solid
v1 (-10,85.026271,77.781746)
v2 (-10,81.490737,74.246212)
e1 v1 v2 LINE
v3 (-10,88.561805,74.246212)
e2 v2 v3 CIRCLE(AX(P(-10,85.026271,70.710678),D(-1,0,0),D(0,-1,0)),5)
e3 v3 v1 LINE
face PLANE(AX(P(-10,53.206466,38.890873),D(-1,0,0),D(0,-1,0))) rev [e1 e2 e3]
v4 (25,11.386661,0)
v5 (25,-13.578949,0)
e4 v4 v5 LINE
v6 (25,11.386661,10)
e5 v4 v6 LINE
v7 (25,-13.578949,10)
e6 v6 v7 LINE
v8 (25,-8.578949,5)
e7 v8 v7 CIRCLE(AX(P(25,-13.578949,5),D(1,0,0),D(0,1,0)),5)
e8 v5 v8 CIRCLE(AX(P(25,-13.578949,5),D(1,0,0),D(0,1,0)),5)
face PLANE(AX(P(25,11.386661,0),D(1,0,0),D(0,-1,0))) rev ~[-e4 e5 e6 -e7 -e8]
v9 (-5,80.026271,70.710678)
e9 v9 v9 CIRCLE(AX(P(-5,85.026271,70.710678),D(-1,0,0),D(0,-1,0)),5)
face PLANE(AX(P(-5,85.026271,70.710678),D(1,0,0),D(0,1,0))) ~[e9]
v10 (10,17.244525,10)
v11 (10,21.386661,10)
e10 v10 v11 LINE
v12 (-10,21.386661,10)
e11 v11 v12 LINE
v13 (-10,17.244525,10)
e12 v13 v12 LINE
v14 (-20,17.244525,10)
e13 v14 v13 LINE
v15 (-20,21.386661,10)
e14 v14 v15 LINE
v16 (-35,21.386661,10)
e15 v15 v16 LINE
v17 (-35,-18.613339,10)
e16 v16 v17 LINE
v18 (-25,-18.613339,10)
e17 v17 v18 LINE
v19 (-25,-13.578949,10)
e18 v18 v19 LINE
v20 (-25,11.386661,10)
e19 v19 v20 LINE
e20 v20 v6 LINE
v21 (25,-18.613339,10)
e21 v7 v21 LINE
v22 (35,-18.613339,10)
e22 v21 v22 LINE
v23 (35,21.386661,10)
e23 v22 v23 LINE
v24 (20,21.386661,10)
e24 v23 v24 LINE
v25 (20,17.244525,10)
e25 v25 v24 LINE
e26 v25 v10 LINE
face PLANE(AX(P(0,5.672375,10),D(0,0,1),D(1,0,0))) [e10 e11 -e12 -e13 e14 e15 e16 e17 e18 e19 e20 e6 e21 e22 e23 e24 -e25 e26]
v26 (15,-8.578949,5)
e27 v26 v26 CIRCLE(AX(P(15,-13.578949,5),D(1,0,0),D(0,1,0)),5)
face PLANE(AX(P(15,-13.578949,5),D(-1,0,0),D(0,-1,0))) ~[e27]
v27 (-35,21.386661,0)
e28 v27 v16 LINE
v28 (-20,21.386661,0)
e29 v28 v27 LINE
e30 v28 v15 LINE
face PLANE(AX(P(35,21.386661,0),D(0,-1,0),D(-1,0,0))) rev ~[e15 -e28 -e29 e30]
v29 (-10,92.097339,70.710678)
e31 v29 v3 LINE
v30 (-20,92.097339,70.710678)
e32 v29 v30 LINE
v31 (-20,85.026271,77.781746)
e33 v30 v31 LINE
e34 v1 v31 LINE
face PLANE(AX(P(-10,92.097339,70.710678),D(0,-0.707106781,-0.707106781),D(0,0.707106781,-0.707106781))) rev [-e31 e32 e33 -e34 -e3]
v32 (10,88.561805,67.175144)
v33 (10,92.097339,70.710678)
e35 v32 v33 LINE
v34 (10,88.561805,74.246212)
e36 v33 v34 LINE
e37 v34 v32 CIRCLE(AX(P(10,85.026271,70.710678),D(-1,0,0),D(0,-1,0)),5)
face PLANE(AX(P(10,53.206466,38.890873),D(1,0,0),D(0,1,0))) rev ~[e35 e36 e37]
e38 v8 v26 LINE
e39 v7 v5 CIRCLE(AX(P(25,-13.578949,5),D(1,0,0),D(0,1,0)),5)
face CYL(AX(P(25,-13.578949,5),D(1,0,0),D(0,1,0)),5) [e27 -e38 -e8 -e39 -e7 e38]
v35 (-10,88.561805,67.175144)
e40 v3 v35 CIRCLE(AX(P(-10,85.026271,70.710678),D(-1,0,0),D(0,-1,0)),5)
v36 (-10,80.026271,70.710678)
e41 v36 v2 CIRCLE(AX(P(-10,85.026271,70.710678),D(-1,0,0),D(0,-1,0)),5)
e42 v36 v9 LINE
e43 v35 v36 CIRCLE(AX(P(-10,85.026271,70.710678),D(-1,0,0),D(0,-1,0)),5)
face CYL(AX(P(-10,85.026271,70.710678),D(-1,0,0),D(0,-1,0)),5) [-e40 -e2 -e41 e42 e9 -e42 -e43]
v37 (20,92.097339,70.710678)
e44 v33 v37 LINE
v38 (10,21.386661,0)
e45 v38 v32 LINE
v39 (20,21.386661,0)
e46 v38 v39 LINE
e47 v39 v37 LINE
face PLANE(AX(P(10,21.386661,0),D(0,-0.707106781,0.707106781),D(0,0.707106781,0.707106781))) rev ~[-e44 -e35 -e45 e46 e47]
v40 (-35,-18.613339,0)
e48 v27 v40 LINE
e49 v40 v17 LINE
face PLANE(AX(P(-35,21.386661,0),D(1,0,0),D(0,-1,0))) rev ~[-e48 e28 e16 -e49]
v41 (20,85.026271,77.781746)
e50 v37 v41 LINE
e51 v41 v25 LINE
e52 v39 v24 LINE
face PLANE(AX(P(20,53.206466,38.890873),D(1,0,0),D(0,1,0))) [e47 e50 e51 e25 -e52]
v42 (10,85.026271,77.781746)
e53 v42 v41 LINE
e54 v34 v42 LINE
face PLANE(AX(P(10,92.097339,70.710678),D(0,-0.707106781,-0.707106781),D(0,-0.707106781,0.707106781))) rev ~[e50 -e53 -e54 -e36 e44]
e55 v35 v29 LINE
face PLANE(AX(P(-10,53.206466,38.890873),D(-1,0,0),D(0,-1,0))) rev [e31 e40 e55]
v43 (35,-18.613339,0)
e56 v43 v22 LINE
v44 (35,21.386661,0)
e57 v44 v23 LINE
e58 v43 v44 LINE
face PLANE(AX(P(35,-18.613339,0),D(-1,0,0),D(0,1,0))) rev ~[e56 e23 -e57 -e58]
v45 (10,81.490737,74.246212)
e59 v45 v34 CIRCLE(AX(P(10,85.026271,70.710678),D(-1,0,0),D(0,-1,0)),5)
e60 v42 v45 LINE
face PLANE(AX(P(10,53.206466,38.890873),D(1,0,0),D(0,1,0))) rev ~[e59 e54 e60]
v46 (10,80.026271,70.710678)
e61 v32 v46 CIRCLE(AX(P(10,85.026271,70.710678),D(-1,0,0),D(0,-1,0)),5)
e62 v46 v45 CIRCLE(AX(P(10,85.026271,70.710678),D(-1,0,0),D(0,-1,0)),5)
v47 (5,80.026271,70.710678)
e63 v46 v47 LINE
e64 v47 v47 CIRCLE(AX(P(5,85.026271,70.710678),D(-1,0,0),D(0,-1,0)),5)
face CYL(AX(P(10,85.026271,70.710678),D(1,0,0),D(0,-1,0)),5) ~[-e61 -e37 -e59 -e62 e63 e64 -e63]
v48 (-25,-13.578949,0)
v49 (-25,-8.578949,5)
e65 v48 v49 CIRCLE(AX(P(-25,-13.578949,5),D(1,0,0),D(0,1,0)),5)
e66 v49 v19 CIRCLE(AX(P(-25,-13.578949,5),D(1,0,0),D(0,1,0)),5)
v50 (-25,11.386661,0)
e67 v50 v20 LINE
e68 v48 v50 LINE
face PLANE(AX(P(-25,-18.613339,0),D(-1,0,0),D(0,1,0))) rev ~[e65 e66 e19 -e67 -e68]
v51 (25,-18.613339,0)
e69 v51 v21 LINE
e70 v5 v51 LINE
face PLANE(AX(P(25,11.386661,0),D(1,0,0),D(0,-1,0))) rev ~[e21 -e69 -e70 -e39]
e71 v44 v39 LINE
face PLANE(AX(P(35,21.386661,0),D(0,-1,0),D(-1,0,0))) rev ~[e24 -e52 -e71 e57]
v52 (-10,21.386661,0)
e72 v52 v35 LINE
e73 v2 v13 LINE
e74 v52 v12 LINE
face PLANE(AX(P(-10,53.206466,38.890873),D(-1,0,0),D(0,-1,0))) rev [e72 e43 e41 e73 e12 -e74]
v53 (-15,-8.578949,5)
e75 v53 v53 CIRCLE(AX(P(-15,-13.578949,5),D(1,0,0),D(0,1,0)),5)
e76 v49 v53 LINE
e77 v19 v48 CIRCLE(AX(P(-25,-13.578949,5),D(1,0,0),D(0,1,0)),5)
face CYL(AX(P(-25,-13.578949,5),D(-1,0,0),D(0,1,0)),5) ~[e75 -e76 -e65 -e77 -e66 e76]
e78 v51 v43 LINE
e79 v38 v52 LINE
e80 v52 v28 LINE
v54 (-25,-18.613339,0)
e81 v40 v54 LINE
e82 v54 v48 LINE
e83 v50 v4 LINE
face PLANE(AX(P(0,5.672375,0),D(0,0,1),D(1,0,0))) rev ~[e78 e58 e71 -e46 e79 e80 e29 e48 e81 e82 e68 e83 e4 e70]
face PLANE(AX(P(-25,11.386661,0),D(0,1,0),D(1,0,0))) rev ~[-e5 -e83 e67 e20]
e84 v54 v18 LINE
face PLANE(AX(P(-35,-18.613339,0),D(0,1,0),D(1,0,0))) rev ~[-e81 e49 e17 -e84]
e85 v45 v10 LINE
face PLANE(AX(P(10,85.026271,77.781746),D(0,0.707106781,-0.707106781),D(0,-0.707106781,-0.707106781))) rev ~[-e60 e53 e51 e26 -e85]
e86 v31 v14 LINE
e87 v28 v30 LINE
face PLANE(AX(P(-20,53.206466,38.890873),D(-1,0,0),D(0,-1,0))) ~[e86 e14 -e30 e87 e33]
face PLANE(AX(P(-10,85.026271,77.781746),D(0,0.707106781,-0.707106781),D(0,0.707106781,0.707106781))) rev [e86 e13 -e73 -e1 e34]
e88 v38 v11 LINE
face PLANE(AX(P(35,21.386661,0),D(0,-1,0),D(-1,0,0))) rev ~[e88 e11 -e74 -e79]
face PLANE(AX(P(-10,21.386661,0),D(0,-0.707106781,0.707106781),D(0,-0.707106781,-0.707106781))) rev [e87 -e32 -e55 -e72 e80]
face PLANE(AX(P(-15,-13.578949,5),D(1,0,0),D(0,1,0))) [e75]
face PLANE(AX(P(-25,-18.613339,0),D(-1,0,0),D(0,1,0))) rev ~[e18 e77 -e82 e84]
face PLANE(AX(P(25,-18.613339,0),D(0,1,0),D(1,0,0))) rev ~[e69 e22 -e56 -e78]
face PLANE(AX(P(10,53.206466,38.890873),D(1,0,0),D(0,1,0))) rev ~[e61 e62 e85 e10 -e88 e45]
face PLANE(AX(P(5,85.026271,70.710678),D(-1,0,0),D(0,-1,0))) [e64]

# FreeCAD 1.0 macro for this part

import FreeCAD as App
import Part
import Sketcher
Q = App.Units.Quantity


def add_polygon(sketch, points):
    """Adds a closed chain of lines whose ends are joined by coincident constraints."""
    first, n = sketch.GeometryCount, len(points)
    for a, b in zip(points, points[1:] + points[:1]):
        sketch.addGeometry(Part.LineSegment(App.Vector(*a, 0), App.Vector(*b, 0)), False)
    for i in range(n):
        sketch.addConstraint(Sketcher.Constraint("Coincident", first + i, 2, first + (i + 1) % n, 1))

doc = App.newDocument("Part")
body = doc.addObject("PartDesign::Body", "Body")

sketch1 = body.newObject("Sketcher::SketchObject", "Sketch")
sketch1.AttachmentSupport = (doc.getObject("XY_Plane"), [""])
sketch1.MapMode = "FlatFace"
add_polygon(sketch1, [(-35, -18.613339), (-25, -18.613339), (-25, 11.386661), (25, 11.386661), (25, -18.613339), (35, -18.613339), (35, 21.386661), (-35, 21.386661)])
sketch1.addConstraint(Sketcher.Constraint("Horizontal", 0))
sketch1.addConstraint(Sketcher.Constraint("Vertical", 1))
sketch1.addConstraint(Sketcher.Constraint("Horizontal", 2))
sketch1.addConstraint(Sketcher.Constraint("Vertical", 3))
sketch1.addConstraint(Sketcher.Constraint("Horizontal", 4))
sketch1.addConstraint(Sketcher.Constraint("Vertical", 5))
sketch1.addConstraint(Sketcher.Constraint("Horizontal", 6))
sketch1.addConstraint(Sketcher.Constraint("Vertical", 7))
sketch1.addConstraint(Sketcher.Constraint("Symmetric", 0, 2, 3, 2, -2))
sketch1.addConstraint(Sketcher.Constraint("Equal", 0, 4))
sketch1.addConstraint(Sketcher.Constraint("DistanceX", 0, 1, 0, 2, Q("10 mm")))
sketch1.addConstraint(Sketcher.Constraint("DistanceX", 2, 1, 2, 2, Q("50 mm")))
sketch1.addConstraint(Sketcher.Constraint("DistanceY", 1, 1, 1, 2, Q("30 mm")))
sketch1.addConstraint(Sketcher.Constraint("DistanceY", 5, 1, 5, 2, Q("40 mm")))
sketch1.addConstraint(Sketcher.Constraint("DistanceY", 0, 2, -1, 1, Q("18.613339 mm")))
pad1 = body.newObject("PartDesign::Pad", "Pad")
pad1.Profile = sketch1
pad1.Length = 10

sketch2 = body.newObject("Sketcher::SketchObject", "Sketch001")
sketch2.AttachmentSupport = (doc.getObject("YZ_Plane"), [""])
sketch2.MapMode = "FlatFace"
sketch2.AttachmentOffset = App.Placement(App.Vector(0, 0, -25), App.Rotation())
sketch2.addGeometry(Part.Circle(App.Vector(-13.578949, 5, 0), App.Vector(0, 0, 1), 5), False)
sketch2.addConstraint(Sketcher.Constraint("Diameter", 0, Q("10 mm")))
sketch2.addConstraint(Sketcher.Constraint("DistanceY", -1, 1, 0, 3, Q("5 mm")))
sketch2.addConstraint(Sketcher.Constraint("DistanceX", 0, 3, -1, 1, Q("13.578949 mm")))
pad2 = body.newObject("PartDesign::Pad", "Pad001")
pad2.Profile = sketch2
pad2.Length = 10
body2 = doc.addObject("PartDesign::Body", "Body001")
doc.recompute()

body2.BaseFeature = body
doc.recompute()

mirroring = doc.addObject("Part::Mirroring", "Mirroring")
mirroring.Source = body
mirroring.Base = App.Vector(0, 0, 0)
mirroring.Normal = App.Vector(1, 0, 0)
body3 = doc.addObject("PartDesign::Body", "Body002")
body3.BaseFeature = mirroring
boolean = body2.newObject("PartDesign::Boolean", "Boolean")
boolean.Type = "Fuse"
boolean.addObjects([body3])
doc.recompute()

sketch3 = body2.newObject("Sketcher::SketchObject", "Sketch002")
sketch3.AttachmentSupport = (doc.getObject("YZ_Plane001"), [""])
sketch3.MapMode = "FlatFace"
sketch3.AttachmentOffset = App.Placement(App.Vector(0, 0, 10), App.Rotation())
add_polygon(sketch3, [(14.315593, 7.071068), (21.386661, 0), (92.097339, 70.710678), (85.026271, 77.781746)])
sketch3.addConstraint(Sketcher.Constraint("PointOnObject", 0, 2, -1))
sketch3.addConstraint(Sketcher.Constraint("Perpendicular", 0, 1))
sketch3.addConstraint(Sketcher.Constraint("Perpendicular", 1, 2))
sketch3.addConstraint(Sketcher.Constraint("Perpendicular", 2, 3))
sketch3.addConstraint(Sketcher.Constraint("Angle", 0, Q("-45 deg")))
sketch3.addConstraint(Sketcher.Constraint("Distance", 0, Q("10 mm")))
sketch3.addConstraint(Sketcher.Constraint("Distance", 1, Q("100 mm")))
sketch3.addConstraint(Sketcher.Constraint("DistanceX", -1, 1, 0, 2, Q("21.386661 mm")))
pad3 = body2.newObject("PartDesign::Pad", "Pad002")
pad3.Profile = sketch3
pad3.Length = 10

sketch4 = body2.newObject("Sketcher::SketchObject", "Sketch003")
sketch4.AttachmentSupport = (doc.getObject("YZ_Plane001"), [""])
sketch4.MapMode = "FlatFace"
sketch4.AttachmentOffset = App.Placement(App.Vector(0, 0, 10), App.Rotation())
sketch4.addGeometry(Part.Circle(App.Vector(85.026271, 70.710678, 0), App.Vector(0, 0, 1), 5), False)
sketch4.addConstraint(Sketcher.Constraint("Diameter", 0, Q("10 mm")))
sketch4.addConstraint(Sketcher.Constraint("DistanceX", -1, 1, 0, 3, Q("85.026271 mm")))
sketch4.addConstraint(Sketcher.Constraint("DistanceY", -1, 1, 0, 3, Q("70.710678 mm")))
pad4 = body2.newObject("PartDesign::Pad", "Pad003")
pad4.Profile = sketch4
pad4.Length = 5
pad4.Reversed = True
body4 = doc.addObject("PartDesign::Body", "Body003")
doc.recompute()

body4.BaseFeature = body2
doc.recompute()

mirroring2 = doc.addObject("Part::Mirroring", "Mirroring001")
mirroring2.Source = body2
mirroring2.Base = App.Vector(0, 0, 0)
mirroring2.Normal = App.Vector(1, 0, 0)
body5 = doc.addObject("PartDesign::Body", "Body004")
body5.BaseFeature = mirroring2
boolean2 = body4.newObject("PartDesign::Boolean", "Boolean001")
boolean2.Type = "Fuse"
boolean2.addObjects([body5])
doc.recompute()
mirroring.Visibility = False
mirroring2.Visibility = False

doc.recompute()
